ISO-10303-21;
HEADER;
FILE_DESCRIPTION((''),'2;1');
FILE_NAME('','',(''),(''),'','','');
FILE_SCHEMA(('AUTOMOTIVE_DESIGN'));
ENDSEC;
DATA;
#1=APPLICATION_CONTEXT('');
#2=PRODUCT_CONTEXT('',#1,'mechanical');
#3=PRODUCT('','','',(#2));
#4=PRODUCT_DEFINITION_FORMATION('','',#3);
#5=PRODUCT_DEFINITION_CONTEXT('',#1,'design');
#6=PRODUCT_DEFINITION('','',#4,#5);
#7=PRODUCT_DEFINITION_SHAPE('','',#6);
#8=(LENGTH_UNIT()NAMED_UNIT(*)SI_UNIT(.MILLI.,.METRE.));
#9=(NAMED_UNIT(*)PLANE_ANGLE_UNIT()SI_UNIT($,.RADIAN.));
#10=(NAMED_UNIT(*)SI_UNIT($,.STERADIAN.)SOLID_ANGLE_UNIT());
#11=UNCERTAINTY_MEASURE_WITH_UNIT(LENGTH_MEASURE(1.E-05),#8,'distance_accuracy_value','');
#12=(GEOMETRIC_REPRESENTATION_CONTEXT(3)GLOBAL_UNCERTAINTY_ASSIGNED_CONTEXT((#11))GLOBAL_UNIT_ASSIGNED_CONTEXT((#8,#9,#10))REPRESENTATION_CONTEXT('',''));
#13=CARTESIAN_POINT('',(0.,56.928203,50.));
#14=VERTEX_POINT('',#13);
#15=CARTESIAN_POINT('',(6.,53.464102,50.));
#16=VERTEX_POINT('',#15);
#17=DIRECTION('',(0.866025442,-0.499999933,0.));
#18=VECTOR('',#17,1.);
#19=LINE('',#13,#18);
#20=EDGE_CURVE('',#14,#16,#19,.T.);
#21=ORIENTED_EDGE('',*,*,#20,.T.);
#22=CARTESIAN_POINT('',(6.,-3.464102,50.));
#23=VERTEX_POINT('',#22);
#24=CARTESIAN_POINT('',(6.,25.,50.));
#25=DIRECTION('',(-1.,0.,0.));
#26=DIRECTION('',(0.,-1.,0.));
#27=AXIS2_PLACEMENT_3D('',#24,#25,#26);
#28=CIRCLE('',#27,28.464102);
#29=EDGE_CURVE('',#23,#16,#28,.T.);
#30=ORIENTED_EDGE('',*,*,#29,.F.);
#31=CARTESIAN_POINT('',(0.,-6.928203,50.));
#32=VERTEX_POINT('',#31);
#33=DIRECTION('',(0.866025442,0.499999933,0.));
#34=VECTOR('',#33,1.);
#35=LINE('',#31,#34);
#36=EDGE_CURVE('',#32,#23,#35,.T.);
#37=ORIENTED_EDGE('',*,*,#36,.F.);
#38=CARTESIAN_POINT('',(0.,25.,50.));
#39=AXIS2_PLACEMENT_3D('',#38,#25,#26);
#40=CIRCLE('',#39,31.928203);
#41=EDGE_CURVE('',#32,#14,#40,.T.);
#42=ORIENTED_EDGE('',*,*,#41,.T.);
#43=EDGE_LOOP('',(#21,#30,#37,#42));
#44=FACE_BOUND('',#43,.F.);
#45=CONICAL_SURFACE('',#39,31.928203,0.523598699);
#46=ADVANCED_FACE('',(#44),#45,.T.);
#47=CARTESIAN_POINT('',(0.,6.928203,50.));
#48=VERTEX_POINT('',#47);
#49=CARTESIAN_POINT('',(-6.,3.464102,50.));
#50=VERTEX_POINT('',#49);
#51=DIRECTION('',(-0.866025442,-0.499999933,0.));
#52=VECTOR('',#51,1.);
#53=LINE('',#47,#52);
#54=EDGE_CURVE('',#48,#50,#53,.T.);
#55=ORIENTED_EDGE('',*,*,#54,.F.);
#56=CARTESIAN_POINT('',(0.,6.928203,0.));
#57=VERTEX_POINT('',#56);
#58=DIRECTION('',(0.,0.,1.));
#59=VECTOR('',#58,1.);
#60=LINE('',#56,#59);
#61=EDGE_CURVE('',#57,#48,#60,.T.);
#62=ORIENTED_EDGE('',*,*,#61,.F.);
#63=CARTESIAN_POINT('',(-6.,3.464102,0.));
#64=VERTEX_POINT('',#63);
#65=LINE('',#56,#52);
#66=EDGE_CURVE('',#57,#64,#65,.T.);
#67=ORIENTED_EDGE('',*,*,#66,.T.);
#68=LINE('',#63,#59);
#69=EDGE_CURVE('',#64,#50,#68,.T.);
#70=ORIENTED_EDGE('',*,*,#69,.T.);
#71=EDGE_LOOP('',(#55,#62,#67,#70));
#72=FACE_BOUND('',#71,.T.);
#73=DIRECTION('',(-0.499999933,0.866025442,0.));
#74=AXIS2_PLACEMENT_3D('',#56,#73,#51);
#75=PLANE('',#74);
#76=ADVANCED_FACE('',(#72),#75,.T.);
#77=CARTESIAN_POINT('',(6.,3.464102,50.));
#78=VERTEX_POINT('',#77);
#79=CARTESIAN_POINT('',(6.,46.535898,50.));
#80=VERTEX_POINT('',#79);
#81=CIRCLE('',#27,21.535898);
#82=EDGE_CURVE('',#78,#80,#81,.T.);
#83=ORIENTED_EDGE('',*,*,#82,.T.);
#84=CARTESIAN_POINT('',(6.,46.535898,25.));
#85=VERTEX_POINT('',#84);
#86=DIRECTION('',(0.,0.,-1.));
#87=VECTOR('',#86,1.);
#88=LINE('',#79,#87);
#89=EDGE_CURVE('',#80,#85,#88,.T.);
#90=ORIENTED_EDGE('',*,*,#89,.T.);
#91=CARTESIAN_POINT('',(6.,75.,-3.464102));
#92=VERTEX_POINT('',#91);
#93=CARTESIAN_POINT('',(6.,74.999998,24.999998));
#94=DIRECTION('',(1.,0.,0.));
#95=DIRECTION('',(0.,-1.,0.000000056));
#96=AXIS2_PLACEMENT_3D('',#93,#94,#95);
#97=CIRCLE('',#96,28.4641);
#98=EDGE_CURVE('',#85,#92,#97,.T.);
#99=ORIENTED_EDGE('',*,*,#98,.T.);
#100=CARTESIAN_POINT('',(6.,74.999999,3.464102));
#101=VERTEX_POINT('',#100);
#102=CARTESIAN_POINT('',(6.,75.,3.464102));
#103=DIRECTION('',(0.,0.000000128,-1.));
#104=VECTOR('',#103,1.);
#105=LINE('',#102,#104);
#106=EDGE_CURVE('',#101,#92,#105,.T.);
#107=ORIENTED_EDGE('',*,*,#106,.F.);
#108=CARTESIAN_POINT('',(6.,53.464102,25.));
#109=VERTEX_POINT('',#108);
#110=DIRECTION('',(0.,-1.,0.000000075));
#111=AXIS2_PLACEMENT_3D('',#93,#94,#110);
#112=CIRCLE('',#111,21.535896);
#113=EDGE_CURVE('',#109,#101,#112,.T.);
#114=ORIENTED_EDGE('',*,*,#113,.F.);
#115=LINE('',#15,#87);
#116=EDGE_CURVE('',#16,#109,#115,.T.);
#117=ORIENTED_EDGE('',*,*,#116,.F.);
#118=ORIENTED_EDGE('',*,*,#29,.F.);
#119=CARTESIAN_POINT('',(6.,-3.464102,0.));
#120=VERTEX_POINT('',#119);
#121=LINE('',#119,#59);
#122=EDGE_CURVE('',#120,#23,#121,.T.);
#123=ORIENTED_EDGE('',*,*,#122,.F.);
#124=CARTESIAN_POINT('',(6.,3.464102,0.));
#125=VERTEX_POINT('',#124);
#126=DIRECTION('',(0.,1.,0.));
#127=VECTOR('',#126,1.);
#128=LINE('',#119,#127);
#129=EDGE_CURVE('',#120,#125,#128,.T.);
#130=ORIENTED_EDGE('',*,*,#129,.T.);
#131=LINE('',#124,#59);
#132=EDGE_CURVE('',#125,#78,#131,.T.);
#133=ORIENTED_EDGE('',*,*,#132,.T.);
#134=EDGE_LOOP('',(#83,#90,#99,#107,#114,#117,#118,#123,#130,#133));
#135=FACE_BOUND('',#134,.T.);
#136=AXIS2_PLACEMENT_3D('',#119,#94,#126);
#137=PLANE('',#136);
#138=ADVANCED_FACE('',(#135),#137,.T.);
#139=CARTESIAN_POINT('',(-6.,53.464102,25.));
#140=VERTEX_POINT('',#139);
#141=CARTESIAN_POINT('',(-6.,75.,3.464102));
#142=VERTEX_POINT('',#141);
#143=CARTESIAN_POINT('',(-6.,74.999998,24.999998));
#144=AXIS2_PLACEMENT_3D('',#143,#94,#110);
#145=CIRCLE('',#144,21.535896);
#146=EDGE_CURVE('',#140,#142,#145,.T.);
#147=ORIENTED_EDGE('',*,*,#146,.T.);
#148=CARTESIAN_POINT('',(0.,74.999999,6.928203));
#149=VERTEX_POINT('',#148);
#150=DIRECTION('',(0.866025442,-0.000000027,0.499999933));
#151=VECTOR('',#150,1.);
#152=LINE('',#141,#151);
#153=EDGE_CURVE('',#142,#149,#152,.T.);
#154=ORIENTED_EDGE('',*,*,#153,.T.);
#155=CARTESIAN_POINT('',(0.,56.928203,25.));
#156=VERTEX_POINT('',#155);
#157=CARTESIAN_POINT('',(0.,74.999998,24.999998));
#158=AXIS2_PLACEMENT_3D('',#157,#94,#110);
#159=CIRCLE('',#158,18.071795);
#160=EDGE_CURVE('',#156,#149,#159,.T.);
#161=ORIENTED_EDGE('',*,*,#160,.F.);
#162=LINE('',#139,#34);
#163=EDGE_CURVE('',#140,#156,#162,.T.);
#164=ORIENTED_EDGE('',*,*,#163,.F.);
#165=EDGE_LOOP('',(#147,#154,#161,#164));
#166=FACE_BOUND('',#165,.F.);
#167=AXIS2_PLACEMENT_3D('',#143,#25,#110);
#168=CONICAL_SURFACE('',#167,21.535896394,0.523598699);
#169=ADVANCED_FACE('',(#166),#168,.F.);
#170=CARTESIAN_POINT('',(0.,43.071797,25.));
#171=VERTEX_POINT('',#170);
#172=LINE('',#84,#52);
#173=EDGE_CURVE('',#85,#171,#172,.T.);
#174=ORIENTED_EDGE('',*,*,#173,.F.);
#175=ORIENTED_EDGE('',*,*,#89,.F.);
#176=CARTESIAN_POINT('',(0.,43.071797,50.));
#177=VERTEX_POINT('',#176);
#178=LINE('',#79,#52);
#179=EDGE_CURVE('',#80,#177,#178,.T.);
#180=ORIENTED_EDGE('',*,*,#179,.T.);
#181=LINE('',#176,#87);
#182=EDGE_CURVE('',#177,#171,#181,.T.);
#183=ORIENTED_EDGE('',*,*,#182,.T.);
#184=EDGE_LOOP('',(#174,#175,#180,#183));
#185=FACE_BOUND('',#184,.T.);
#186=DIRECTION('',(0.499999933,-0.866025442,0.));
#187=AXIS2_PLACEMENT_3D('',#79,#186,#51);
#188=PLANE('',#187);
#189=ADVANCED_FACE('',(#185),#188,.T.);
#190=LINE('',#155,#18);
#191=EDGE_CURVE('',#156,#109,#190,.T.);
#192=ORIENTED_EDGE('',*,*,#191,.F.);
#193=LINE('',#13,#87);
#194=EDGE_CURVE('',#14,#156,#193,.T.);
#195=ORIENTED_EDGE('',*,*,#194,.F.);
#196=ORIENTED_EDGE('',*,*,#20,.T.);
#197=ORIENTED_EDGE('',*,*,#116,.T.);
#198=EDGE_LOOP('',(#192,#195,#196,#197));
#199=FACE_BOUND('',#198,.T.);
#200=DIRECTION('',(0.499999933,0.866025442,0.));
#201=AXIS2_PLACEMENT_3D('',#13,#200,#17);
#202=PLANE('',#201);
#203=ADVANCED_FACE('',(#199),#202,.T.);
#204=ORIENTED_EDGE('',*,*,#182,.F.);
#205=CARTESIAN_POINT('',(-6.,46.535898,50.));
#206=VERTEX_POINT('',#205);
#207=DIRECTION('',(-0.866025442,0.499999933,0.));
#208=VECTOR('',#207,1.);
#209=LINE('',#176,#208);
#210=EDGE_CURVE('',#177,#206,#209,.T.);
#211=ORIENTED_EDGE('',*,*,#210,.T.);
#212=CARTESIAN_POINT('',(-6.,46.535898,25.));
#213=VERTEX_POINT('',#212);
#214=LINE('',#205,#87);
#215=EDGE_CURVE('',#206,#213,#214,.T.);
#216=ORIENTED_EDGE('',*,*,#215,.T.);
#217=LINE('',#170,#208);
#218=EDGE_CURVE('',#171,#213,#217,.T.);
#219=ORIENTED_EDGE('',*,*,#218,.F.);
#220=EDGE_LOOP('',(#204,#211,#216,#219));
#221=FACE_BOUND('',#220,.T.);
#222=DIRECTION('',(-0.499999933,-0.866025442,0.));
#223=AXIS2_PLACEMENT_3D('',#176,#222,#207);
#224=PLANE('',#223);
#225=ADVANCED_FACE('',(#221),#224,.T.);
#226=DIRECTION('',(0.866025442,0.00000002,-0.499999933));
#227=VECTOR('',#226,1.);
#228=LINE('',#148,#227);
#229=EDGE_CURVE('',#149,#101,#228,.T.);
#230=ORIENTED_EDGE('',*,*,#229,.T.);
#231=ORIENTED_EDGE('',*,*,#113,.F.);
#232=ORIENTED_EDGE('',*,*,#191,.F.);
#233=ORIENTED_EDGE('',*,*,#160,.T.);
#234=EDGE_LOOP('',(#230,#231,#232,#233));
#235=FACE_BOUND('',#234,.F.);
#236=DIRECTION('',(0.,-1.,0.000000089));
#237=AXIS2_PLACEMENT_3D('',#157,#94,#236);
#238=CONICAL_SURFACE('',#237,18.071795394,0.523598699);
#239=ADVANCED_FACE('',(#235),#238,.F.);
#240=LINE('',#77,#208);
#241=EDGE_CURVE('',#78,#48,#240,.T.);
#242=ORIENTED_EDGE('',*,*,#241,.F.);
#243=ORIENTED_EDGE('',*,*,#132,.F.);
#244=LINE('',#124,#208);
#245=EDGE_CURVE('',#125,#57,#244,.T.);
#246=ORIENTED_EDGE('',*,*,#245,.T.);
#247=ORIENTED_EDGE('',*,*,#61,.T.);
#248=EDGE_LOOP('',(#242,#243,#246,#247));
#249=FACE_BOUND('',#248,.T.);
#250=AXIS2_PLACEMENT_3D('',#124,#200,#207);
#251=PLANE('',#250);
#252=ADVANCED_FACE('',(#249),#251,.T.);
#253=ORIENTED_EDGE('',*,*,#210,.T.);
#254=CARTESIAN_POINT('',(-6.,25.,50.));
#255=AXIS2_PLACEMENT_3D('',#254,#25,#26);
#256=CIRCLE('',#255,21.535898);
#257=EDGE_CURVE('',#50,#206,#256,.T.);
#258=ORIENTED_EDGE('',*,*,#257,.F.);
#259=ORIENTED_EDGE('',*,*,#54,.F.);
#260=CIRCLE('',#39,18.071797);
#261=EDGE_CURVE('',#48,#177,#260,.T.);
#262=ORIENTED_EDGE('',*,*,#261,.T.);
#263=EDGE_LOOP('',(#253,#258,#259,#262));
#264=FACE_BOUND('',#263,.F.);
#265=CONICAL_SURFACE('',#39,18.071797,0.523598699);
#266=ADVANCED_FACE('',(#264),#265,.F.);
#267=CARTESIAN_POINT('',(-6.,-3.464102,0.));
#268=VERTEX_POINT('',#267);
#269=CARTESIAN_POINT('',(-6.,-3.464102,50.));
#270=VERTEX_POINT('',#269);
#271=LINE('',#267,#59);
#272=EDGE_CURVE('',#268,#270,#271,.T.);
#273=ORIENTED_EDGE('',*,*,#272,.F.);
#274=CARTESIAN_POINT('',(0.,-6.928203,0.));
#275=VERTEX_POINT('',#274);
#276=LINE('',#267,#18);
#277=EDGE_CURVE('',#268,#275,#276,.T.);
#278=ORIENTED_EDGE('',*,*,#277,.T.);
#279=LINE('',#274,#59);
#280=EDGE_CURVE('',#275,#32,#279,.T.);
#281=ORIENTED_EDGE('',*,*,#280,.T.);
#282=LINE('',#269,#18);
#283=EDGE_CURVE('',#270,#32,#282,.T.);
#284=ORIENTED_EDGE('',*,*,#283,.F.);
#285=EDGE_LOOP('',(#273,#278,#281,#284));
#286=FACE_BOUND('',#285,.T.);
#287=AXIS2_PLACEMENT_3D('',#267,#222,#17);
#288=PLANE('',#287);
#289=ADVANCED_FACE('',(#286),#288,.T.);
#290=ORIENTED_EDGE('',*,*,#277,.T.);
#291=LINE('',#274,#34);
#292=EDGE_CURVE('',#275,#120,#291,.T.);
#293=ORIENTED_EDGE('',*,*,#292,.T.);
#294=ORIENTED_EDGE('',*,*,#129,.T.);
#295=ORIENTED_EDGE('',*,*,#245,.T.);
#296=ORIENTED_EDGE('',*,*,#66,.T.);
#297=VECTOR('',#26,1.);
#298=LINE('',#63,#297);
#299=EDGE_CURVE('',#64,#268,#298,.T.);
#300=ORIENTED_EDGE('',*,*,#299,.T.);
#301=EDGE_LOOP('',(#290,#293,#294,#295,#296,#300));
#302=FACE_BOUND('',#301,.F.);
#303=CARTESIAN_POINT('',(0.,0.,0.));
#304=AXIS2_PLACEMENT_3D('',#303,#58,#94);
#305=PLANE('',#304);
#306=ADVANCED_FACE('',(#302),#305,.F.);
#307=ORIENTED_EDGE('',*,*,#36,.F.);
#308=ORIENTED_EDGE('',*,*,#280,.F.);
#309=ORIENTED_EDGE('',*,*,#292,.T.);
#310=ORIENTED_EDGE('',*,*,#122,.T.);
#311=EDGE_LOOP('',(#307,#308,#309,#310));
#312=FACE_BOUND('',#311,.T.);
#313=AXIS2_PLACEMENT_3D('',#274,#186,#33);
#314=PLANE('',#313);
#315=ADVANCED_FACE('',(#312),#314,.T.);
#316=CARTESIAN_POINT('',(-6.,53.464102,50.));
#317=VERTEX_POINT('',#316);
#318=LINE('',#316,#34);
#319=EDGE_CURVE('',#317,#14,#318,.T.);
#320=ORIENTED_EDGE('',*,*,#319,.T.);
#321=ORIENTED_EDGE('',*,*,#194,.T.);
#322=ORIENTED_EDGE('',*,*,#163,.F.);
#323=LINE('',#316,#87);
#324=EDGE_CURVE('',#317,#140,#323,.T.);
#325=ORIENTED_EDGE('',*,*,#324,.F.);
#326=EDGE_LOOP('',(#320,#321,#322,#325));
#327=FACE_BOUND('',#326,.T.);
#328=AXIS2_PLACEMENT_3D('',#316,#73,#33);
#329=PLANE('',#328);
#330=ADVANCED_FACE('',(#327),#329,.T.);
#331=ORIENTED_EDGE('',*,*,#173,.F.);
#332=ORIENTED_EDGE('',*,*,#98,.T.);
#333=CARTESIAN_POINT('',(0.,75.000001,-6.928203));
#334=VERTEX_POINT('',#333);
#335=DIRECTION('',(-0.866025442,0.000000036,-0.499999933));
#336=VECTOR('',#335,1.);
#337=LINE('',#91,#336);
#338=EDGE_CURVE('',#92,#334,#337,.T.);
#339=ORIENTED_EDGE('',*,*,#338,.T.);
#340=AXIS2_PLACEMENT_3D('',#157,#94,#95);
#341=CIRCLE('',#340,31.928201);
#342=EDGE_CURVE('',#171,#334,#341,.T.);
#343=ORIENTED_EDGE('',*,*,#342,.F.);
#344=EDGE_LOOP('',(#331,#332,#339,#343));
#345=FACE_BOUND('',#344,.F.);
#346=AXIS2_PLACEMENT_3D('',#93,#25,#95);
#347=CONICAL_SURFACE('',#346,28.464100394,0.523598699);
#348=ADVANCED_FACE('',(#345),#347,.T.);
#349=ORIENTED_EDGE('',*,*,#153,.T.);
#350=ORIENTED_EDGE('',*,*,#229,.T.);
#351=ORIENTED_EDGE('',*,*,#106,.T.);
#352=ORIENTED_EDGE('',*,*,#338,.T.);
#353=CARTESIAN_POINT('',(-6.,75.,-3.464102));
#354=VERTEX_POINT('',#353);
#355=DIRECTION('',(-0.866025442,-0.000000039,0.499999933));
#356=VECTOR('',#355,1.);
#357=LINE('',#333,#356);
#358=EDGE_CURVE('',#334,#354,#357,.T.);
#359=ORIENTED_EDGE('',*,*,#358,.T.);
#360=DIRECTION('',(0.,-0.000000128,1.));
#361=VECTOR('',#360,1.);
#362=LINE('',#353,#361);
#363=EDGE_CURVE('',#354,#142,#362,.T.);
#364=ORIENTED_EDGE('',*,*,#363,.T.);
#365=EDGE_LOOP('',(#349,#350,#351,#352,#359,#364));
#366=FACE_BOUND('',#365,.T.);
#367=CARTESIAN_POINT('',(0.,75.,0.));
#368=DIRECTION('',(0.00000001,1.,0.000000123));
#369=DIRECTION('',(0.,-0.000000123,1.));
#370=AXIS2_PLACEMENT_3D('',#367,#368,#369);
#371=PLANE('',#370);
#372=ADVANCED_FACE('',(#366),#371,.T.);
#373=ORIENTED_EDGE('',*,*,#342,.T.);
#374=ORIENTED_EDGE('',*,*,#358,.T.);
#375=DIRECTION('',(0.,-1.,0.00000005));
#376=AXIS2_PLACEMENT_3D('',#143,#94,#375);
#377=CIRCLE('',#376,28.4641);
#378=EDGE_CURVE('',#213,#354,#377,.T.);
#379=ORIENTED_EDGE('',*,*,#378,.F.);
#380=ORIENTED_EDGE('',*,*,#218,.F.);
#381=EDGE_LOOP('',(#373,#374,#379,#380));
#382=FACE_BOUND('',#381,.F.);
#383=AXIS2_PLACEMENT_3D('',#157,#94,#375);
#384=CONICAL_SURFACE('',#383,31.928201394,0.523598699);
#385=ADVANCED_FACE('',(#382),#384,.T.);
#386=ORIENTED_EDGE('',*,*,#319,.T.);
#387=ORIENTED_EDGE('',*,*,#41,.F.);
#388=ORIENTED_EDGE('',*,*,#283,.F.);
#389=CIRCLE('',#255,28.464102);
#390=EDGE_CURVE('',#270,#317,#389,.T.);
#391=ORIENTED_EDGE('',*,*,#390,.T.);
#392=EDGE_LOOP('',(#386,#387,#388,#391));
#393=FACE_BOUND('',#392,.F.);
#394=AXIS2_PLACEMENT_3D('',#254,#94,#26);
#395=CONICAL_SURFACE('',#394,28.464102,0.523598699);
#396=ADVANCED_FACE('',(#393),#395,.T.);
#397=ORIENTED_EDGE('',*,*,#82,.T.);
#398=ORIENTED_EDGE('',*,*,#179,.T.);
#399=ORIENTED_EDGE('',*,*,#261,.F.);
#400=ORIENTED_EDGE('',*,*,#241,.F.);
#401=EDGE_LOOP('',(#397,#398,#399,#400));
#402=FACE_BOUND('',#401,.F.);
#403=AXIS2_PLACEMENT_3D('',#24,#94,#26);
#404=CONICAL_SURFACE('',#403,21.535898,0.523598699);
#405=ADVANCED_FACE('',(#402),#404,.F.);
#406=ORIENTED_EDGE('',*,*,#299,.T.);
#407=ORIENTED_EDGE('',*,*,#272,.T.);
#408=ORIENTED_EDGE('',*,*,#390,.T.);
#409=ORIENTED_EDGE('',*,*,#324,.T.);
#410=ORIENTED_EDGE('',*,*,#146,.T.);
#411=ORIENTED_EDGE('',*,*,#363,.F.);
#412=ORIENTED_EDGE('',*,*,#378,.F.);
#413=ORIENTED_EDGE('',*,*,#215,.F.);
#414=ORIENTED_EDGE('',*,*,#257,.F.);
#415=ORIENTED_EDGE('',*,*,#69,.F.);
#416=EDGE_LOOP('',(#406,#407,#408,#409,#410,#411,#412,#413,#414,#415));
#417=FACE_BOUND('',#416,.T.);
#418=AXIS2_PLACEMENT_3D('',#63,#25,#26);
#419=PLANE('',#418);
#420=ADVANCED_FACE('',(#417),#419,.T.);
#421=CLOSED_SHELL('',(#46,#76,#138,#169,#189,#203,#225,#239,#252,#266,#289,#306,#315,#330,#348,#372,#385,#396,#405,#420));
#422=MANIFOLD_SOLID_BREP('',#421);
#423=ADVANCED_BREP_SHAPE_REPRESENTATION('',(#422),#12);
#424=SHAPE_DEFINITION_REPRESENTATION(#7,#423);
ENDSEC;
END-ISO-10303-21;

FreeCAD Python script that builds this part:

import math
import FreeCAD as App
import Part
import Sketcher
from FreeCAD import Vector
Q = App.Units.Quantity


def add_polygon(sketch, points):
    """Adds a closed chain of lines whose ends are joined by coincident constraints."""
    first, n = sketch.GeometryCount, len(points)
    for a, b in zip(points, points[1:] + points[:1]):
        sketch.addGeometry(Part.LineSegment(App.Vector(*a, 0), App.Vector(*b, 0)), False)
    for i in range(n):
        sketch.addConstraint(Sketcher.Constraint("Coincident", first + i, 2, first + (i + 1) % n, 1))

doc = App.newDocument("Part")
body = doc.addObject("PartDesign::Body", "Body")

# Sketch on XY plane
sketch1 = body.newObject("Sketcher::SketchObject", "Sketch")
sketch1.AttachmentSupport = (doc.getObject("XY_Plane"), [""])
sketch1.MapMode = "FlatFace"
add_polygon(sketch1, [(6, -3), (6, 3), (0, 7), (-6, 3), (-6, -3), (0, -7)])  # lines 0-5
sketch1.addConstraint([
    Sketcher.Constraint("Vertical", 0),
    Sketcher.Constraint("Vertical", 3),
    Sketcher.Constraint("Symmetric", 0, 2, 3, 2, -1, 1),
    Sketcher.Constraint("Symmetric", 1, 2, 4, 2, -1, 1),
    Sketcher.Constraint("PointOnObject", 1, 2, -2),
    Sketcher.Constraint("Parallel", 2, 5),
    Sketcher.Constraint("Horizontal", 0, 2, 2, 2),
    Sketcher.Constraint("Angle", 1, Q("150.000004 deg")),
    Sketcher.Constraint("DistanceX", -1, 1, 0, 2, 6.0),
    Sketcher.Constraint("DistanceY", -1, 1, 0, 2, 3.464102),
])

# Sketch on YZ plane
sketch2 = body.newObject("Sketcher::SketchObject", "Sketch001")
sketch2.AttachmentSupport = (doc.getObject("YZ_Plane"), [""])
sketch2.MapMode = "FlatFace"
sketch2.addGeometry([
    Part.LineSegment(Vector(0, 0, 0), Vector(0, 50, 0)),
    Part.ArcOfCircle(Part.Circle(Vector(25, 50, 0), Vector(0, 0, 1), 25), math.radians(0), math.radians(180)),
    Part.LineSegment(Vector(50, 50, 0), Vector(50, 25, 0)),
    Part.ArcOfCircle(Part.Circle(Vector(75, 25, 0), Vector(0, 0, 1), 25), math.radians(180), math.radians(270)),
], False)
sketch2.addConstraint([
    Sketcher.Constraint("Tangent", 0, 2, 1, 2),
    Sketcher.Constraint("Tangent", 1, 1, 2, 1),
    Sketcher.Constraint("Tangent", 2, 2, 3, 1),
    Sketcher.Constraint("Vertical", 0),
    Sketcher.Constraint("Vertical", 2),
    Sketcher.Constraint("Coincident", 0, 1, -1, 1),
    Sketcher.Constraint("Equal", 1, 3),
    Sketcher.Constraint("PointOnObject", 3, 2, -1),
    Sketcher.Constraint("Radius", 1, 25.0),
    Sketcher.Constraint("DistanceY", 0, 1, 0, 2, 50.0),
    Sketcher.Constraint("DistanceX", -1, 1, 3, 2, 75.0),
])
doc.recompute()

additivepipe = body.newObject("PartDesign::AdditivePipe", "AdditivePipe")
additivepipe.Profile = sketch1
additivepipe.Spine = (sketch2, ["Edge1", "Edge2", "Edge3", "Edge4"])

doc.recompute()
